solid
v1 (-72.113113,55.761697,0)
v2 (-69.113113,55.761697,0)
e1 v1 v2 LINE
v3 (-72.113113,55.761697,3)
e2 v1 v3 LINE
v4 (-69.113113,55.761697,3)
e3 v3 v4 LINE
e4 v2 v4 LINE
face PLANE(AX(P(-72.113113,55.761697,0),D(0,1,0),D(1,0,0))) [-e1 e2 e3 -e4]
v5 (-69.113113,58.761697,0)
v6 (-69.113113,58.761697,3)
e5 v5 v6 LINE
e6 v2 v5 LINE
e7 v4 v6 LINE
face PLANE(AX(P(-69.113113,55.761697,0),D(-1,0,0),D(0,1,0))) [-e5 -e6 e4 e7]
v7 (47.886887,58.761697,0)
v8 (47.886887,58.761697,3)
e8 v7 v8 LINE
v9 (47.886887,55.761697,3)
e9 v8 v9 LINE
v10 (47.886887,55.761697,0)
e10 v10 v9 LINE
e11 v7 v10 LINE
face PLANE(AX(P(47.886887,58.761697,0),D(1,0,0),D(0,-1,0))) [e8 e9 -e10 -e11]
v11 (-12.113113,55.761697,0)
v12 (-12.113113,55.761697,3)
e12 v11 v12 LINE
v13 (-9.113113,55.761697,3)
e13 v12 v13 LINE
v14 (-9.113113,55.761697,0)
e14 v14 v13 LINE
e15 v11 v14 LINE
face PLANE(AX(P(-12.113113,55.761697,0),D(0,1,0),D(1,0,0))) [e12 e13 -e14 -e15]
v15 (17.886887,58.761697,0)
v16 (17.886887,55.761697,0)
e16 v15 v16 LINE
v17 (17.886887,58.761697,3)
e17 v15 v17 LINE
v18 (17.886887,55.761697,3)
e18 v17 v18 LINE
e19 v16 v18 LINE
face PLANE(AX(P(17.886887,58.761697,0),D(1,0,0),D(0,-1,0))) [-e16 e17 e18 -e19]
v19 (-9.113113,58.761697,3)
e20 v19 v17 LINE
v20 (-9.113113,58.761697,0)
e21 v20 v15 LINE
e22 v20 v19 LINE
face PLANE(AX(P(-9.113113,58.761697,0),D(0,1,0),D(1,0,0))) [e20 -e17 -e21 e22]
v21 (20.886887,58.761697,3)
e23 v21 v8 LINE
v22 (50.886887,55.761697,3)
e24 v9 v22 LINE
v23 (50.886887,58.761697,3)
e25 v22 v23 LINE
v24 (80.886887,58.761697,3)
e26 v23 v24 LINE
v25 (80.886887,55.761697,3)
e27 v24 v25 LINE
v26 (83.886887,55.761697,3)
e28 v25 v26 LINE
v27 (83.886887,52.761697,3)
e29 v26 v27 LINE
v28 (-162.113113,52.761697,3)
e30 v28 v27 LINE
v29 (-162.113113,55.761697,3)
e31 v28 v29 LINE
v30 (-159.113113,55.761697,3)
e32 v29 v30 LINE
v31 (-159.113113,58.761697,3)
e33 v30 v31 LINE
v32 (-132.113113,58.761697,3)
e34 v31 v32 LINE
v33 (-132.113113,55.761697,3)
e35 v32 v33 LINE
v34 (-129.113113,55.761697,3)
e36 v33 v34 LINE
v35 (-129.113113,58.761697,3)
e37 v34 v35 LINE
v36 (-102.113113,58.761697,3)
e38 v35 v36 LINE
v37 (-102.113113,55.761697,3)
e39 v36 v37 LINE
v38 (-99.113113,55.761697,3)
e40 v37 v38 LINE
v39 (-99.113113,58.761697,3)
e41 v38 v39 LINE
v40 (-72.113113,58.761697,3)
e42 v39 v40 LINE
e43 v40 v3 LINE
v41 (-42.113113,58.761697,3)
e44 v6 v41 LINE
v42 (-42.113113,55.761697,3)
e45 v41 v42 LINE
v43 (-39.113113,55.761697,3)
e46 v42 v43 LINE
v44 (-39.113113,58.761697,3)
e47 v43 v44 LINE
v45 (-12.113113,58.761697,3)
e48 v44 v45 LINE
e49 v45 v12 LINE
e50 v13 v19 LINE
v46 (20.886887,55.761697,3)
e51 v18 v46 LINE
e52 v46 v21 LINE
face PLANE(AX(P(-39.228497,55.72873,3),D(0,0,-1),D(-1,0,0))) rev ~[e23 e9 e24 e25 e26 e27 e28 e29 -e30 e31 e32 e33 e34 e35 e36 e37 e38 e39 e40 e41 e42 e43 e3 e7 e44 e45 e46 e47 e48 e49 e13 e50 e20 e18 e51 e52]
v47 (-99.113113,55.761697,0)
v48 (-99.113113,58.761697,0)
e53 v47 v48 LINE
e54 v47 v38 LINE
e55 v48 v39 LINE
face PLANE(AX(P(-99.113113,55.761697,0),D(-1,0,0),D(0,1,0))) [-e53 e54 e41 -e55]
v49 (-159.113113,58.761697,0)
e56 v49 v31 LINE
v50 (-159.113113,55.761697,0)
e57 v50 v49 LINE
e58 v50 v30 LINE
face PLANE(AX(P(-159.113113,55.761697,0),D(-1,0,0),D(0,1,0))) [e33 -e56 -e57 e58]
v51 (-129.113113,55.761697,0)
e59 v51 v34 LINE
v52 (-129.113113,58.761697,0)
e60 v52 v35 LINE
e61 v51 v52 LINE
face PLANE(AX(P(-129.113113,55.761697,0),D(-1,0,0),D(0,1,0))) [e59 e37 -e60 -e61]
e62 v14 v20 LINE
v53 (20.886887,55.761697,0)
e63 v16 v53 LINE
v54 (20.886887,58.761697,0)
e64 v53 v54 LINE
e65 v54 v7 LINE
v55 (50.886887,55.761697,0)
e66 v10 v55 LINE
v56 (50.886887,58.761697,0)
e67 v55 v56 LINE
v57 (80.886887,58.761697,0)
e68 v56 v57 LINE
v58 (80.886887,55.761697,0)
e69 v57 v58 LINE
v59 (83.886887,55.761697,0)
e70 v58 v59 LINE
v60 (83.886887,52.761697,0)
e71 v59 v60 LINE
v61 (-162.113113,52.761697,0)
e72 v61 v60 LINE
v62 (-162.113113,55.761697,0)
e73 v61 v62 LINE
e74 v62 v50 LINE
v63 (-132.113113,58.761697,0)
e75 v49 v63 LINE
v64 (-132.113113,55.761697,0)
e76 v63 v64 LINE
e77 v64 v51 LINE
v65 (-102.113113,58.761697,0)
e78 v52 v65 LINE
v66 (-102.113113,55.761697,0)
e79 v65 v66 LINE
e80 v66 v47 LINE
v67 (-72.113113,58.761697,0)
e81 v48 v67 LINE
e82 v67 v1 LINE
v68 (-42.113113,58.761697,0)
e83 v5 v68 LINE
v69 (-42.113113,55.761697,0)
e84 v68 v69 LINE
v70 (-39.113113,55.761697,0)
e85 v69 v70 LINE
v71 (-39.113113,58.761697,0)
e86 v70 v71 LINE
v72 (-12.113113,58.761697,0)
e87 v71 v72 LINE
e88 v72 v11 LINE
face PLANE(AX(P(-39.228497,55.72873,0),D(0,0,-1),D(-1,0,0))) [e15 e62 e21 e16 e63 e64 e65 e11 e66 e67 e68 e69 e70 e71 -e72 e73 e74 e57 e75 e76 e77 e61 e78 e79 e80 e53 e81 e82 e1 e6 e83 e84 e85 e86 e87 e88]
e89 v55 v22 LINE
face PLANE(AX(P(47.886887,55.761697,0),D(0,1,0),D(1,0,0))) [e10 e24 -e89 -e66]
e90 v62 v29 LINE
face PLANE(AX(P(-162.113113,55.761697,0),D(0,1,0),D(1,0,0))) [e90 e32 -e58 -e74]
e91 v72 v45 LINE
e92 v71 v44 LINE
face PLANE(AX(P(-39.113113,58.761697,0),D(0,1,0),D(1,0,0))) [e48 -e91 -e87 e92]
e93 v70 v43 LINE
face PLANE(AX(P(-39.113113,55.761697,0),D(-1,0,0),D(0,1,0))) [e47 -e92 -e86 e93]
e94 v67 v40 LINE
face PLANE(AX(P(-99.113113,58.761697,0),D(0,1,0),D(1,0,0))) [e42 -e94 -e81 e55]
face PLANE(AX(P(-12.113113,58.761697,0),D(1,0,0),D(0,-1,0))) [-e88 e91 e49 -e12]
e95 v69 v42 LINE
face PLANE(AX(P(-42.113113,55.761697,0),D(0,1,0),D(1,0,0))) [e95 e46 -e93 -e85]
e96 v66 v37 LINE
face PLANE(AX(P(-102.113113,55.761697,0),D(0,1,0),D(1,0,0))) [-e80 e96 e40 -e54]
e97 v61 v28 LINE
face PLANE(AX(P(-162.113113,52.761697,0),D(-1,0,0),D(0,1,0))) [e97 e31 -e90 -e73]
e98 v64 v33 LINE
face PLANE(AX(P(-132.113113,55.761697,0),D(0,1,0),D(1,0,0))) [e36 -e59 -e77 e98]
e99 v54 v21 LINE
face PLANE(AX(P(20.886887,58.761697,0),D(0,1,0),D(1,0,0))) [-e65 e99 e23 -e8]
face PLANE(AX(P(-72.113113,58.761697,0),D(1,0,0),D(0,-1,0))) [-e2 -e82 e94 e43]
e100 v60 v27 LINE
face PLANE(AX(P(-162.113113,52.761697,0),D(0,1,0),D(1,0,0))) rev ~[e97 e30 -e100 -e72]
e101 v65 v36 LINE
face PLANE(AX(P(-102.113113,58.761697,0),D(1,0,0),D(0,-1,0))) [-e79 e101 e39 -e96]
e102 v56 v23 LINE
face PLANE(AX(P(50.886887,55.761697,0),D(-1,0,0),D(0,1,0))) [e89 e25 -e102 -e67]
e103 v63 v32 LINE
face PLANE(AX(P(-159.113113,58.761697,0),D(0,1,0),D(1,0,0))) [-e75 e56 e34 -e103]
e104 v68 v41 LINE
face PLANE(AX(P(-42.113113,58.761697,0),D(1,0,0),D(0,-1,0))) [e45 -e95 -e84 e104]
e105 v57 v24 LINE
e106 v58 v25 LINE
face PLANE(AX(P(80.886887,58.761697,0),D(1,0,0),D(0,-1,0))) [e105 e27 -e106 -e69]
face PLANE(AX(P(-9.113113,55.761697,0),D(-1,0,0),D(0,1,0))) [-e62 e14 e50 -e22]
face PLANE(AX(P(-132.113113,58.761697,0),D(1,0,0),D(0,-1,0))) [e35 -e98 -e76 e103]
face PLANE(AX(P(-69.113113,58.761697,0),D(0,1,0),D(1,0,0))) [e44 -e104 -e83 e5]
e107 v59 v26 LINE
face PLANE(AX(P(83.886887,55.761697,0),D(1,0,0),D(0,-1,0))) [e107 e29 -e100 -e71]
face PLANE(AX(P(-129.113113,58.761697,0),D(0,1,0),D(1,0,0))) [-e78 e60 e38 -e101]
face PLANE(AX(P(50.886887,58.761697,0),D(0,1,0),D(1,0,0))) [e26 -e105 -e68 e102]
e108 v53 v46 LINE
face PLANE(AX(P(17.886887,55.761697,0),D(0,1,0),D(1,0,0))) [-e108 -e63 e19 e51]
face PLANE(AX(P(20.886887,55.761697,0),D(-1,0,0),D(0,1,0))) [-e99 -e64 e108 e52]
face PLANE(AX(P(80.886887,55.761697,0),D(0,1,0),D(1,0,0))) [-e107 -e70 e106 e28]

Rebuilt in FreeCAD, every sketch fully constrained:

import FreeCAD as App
import Part
import Sketcher
from FreeCAD import Vector
Q = App.Units.Quantity

doc = App.newDocument("Part")
body = doc.addObject("PartDesign::Body", "Body")

# Sketch on XY plane
sketch1 = body.newObject("Sketcher::SketchObject", "Sketch")
sketch1.AttachmentSupport = (doc.getObject("XY_Plane"), [""])
sketch1.MapMode = "FlatFace"
sketch1.addGeometry([
    Part.LineSegment(Vector(-132.113113, 58.761697, 0), Vector(-159.113113, 58.761697, 0)),  # 0
    Part.LineSegment(Vector(-159.113113, 58.761697, 0), Vector(-159.113113, 55.761697, 0)),  # 1
    Part.LineSegment(Vector(-159.113113, 55.761697, 0), Vector(-162.113113, 55.761697, 0)),  # 2
    Part.LineSegment(Vector(-162.113113, 55.761697, 0), Vector(-162.113113, 52.761697, 0)),  # 3
    Part.LineSegment(Vector(-162.113113, 52.761697, 0), Vector(83.886887, 52.761697, 0)),  # 4
    Part.LineSegment(Vector(83.886887, 52.761697, 0), Vector(83.886887, 55.761697, 0)),  # 5
    Part.LineSegment(Vector(83.886887, 55.761697, 0), Vector(80.886887, 55.761697, 0)),  # 6
    Part.LineSegment(Vector(80.886887, 55.761697, 0), Vector(80.886887, 58.761697, 0)),  # 7
    Part.LineSegment(Vector(80.886887, 58.761697, 0), Vector(50.886887, 58.761697, 0)),  # 8
    Part.LineSegment(Vector(50.886887, 58.761697, 0), Vector(50.886887, 55.761697, 0)),  # 9
    Part.LineSegment(Vector(50.886887, 55.761697, 0), Vector(47.886887, 55.761697, 0)),  # 10
    Part.LineSegment(Vector(47.886887, 55.761697, 0), Vector(47.886887, 58.761697, 0)),  # 11
    Part.LineSegment(Vector(47.886887, 58.761697, 0), Vector(20.886887, 58.761697, 0)),  # 12
    Part.LineSegment(Vector(20.886887, 58.761697, 0), Vector(20.886887, 55.761697, 0)),  # 13
    Part.LineSegment(Vector(20.886887, 55.761697, 0), Vector(17.886887, 55.761697, 0)),  # 14
    Part.LineSegment(Vector(17.886887, 55.761697, 0), Vector(17.886887, 58.761697, 0)),  # 15
    Part.LineSegment(Vector(17.886887, 58.761697, 0), Vector(-9.113113, 58.761697, 0)),  # 16
    Part.LineSegment(Vector(-9.113113, 58.761697, 0), Vector(-9.113113, 55.761697, 0)),  # 17
    Part.LineSegment(Vector(-9.113113, 55.761697, 0), Vector(-12.113113, 55.761697, 0)),  # 18
    Part.LineSegment(Vector(-12.113113, 55.761697, 0), Vector(-12.113113, 58.761697, 0)),  # 19
    Part.LineSegment(Vector(-12.113113, 58.761697, 0), Vector(-39.113113, 58.761697, 0)),  # 20
    Part.LineSegment(Vector(-39.113113, 58.761697, 0), Vector(-39.113113, 55.761697, 0)),  # 21
    Part.LineSegment(Vector(-39.113113, 55.761697, 0), Vector(-42.113113, 55.761697, 0)),  # 22
    Part.LineSegment(Vector(-42.113113, 55.761697, 0), Vector(-42.113113, 58.761697, 0)),  # 23
    Part.LineSegment(Vector(-42.113113, 58.761697, 0), Vector(-69.113113, 58.761697, 0)),  # 24
    Part.LineSegment(Vector(-69.113113, 58.761697, 0), Vector(-69.113113, 55.761697, 0)),  # 25
    Part.LineSegment(Vector(-69.113113, 55.761697, 0), Vector(-72.113113, 55.761697, 0)),  # 26
    Part.LineSegment(Vector(-72.113113, 55.761697, 0), Vector(-72.113113, 58.761697, 0)),  # 27
    Part.LineSegment(Vector(-72.113113, 58.761697, 0), Vector(-99.113113, 58.761697, 0)),  # 28
    Part.LineSegment(Vector(-99.113113, 58.761697, 0), Vector(-99.113113, 55.761697, 0)),  # 29
    Part.LineSegment(Vector(-99.113113, 55.761697, 0), Vector(-102.113113, 55.761697, 0)),  # 30
    Part.LineSegment(Vector(-102.113113, 55.761697, 0), Vector(-102.113113, 58.761697, 0)),  # 31
    Part.LineSegment(Vector(-102.113113, 58.761697, 0), Vector(-129.113113, 58.761697, 0)),  # 32
    Part.LineSegment(Vector(-129.113113, 58.761697, 0), Vector(-129.113113, 55.761697, 0)),  # 33
    Part.LineSegment(Vector(-129.113113, 55.761697, 0), Vector(-132.113113, 55.761697, 0)),  # 34
    Part.LineSegment(Vector(-132.113113, 55.761697, 0), Vector(-132.113113, 58.761697, 0)),  # 35
], False)
sketch1.addConstraint([
    Sketcher.Constraint("Coincident", 0, 2, 1, 1),
    Sketcher.Constraint("Coincident", 1, 2, 2, 1),
    Sketcher.Constraint("Coincident", 2, 2, 3, 1),
    Sketcher.Constraint("Coincident", 3, 2, 4, 1),
    Sketcher.Constraint("Coincident", 4, 2, 5, 1),
    Sketcher.Constraint("Coincident", 5, 2, 6, 1),
    Sketcher.Constraint("Coincident", 6, 2, 7, 1),
    Sketcher.Constraint("Coincident", 7, 2, 8, 1),
    Sketcher.Constraint("Coincident", 8, 2, 9, 1),
    Sketcher.Constraint("Coincident", 9, 2, 10, 1),
    Sketcher.Constraint("Coincident", 10, 2, 11, 1),
    Sketcher.Constraint("Coincident", 11, 2, 12, 1),
    Sketcher.Constraint("Coincident", 12, 2, 13, 1),
    Sketcher.Constraint("Coincident", 13, 2, 14, 1),
    Sketcher.Constraint("Coincident", 14, 2, 15, 1),
    Sketcher.Constraint("Coincident", 15, 2, 16, 1),
    Sketcher.Constraint("Coincident", 16, 2, 17, 1),
    Sketcher.Constraint("Coincident", 17, 2, 18, 1),
    Sketcher.Constraint("Coincident", 18, 2, 19, 1),
    Sketcher.Constraint("Coincident", 19, 2, 20, 1),
    Sketcher.Constraint("Coincident", 20, 2, 21, 1),
    Sketcher.Constraint("Coincident", 21, 2, 22, 1),
    Sketcher.Constraint("Coincident", 22, 2, 23, 1),
    Sketcher.Constraint("Coincident", 23, 2, 24, 1),
    Sketcher.Constraint("Coincident", 24, 2, 25, 1),
    Sketcher.Constraint("Coincident", 25, 2, 26, 1),
    Sketcher.Constraint("Coincident", 26, 2, 27, 1),
    Sketcher.Constraint("Coincident", 27, 2, 28, 1),
    Sketcher.Constraint("Coincident", 28, 2, 29, 1),
    Sketcher.Constraint("Coincident", 29, 2, 30, 1),
    Sketcher.Constraint("Coincident", 30, 2, 31, 1),
    Sketcher.Constraint("Coincident", 31, 2, 32, 1),
    Sketcher.Constraint("Coincident", 32, 2, 33, 1),
    Sketcher.Constraint("Coincident", 33, 2, 34, 1),
    Sketcher.Constraint("Coincident", 34, 2, 35, 1),
    Sketcher.Constraint("Coincident", 35, 2, 0, 1),
    Sketcher.Constraint("Horizontal", 0),
    Sketcher.Constraint("Vertical", 1),
    Sketcher.Constraint("Horizontal", 2),
    Sketcher.Constraint("Vertical", 3),
    Sketcher.Constraint("Horizontal", 4),
    Sketcher.Constraint("Vertical", 5),
    Sketcher.Constraint("Horizontal", 6),
    Sketcher.Constraint("Vertical", 7),
    Sketcher.Constraint("Horizontal", 8),
    Sketcher.Constraint("Vertical", 9),
    Sketcher.Constraint("Horizontal", 10),
    Sketcher.Constraint("Vertical", 11),
    Sketcher.Constraint("Horizontal", 12),
    Sketcher.Constraint("Vertical", 13),
    Sketcher.Constraint("Horizontal", 14),
    Sketcher.Constraint("Vertical", 15),
    Sketcher.Constraint("Horizontal", 16),
    Sketcher.Constraint("Vertical", 17),
    Sketcher.Constraint("Horizontal", 18),
    Sketcher.Constraint("Vertical", 19),
    Sketcher.Constraint("Horizontal", 20),
    Sketcher.Constraint("Vertical", 21),
    Sketcher.Constraint("Horizontal", 22),
    Sketcher.Constraint("Vertical", 23),
    Sketcher.Constraint("Horizontal", 24),
    Sketcher.Constraint("Vertical", 25),
    Sketcher.Constraint("Horizontal", 26),
    Sketcher.Constraint("Vertical", 27),
    Sketcher.Constraint("Horizontal", 28),
    Sketcher.Constraint("Vertical", 29),
    Sketcher.Constraint("Horizontal", 30),
    Sketcher.Constraint("Vertical", 31),
    Sketcher.Constraint("Horizontal", 32),
    Sketcher.Constraint("Vertical", 33),
    Sketcher.Constraint("Horizontal", 34),
    Sketcher.Constraint("Vertical", 35),
    Sketcher.Constraint("Horizontal", 2, 2, 5, 2),
    Sketcher.Constraint("Horizontal", 0, 2, 7, 2),
    Sketcher.Constraint("Horizontal", 6, 2, 9, 2),
    Sketcher.Constraint("Horizontal", 8, 2, 11, 2),
    Sketcher.Constraint("Horizontal", 10, 2, 13, 2),
    Sketcher.Constraint("Horizontal", 12, 2, 15, 2),
    Sketcher.Constraint("Horizontal", 14, 2, 17, 2),
    Sketcher.Constraint("Horizontal", 16, 2, 19, 2),
    Sketcher.Constraint("Horizontal", 18, 2, 21, 2),
    Sketcher.Constraint("Horizontal", 20, 2, 23, 2),
    Sketcher.Constraint("Horizontal", 22, 2, 25, 2),
    Sketcher.Constraint("Horizontal", 24, 2, 27, 2),
    Sketcher.Constraint("Horizontal", 26, 2, 29, 2),
    Sketcher.Constraint("Horizontal", 28, 2, 31, 2),
    Sketcher.Constraint("Horizontal", 30, 2, 33, 2),
    Sketcher.Constraint("Equal", 2, 6),
    Sketcher.Constraint("Equal", 6, 10),
    Sketcher.Constraint("Equal", 0, 12),
    Sketcher.Constraint("Equal", 10, 14),
    Sketcher.Constraint("Equal", 12, 16),
    Sketcher.Constraint("Equal", 14, 18),
    Sketcher.Constraint("Equal", 16, 20),
    Sketcher.Constraint("Equal", 18, 22),
    Sketcher.Constraint("Equal", 20, 24),
    Sketcher.Constraint("Equal", 22, 26),
    Sketcher.Constraint("Equal", 24, 28),
    Sketcher.Constraint("Equal", 26, 30),
    Sketcher.Constraint("Equal", 28, 32),
    Sketcher.Constraint("Equal", 30, 34),
    Sketcher.Constraint("Equal", 34, 1),
    Sketcher.Constraint("Equal", 1, 3),
    Sketcher.Constraint("DistanceX", 0, 2, 0, 1, Q("27 mm")),
    Sketcher.Constraint("DistanceX", 2, 2, 2, 1, Q("3 mm")),
    Sketcher.Constraint("DistanceX", 4, 1, 4, 2, Q("246 mm")),
    Sketcher.Constraint("DistanceX", 0, 2, -1, 1, Q("159.113113 mm")),
    Sketcher.Constraint("DistanceY", -1, 1, 0, 2, Q("58.761697 mm")),
])
pad1 = body.newObject("PartDesign::Pad", "Pad")
pad1.Profile = sketch1
pad1.Length = 3

doc.recompute()
